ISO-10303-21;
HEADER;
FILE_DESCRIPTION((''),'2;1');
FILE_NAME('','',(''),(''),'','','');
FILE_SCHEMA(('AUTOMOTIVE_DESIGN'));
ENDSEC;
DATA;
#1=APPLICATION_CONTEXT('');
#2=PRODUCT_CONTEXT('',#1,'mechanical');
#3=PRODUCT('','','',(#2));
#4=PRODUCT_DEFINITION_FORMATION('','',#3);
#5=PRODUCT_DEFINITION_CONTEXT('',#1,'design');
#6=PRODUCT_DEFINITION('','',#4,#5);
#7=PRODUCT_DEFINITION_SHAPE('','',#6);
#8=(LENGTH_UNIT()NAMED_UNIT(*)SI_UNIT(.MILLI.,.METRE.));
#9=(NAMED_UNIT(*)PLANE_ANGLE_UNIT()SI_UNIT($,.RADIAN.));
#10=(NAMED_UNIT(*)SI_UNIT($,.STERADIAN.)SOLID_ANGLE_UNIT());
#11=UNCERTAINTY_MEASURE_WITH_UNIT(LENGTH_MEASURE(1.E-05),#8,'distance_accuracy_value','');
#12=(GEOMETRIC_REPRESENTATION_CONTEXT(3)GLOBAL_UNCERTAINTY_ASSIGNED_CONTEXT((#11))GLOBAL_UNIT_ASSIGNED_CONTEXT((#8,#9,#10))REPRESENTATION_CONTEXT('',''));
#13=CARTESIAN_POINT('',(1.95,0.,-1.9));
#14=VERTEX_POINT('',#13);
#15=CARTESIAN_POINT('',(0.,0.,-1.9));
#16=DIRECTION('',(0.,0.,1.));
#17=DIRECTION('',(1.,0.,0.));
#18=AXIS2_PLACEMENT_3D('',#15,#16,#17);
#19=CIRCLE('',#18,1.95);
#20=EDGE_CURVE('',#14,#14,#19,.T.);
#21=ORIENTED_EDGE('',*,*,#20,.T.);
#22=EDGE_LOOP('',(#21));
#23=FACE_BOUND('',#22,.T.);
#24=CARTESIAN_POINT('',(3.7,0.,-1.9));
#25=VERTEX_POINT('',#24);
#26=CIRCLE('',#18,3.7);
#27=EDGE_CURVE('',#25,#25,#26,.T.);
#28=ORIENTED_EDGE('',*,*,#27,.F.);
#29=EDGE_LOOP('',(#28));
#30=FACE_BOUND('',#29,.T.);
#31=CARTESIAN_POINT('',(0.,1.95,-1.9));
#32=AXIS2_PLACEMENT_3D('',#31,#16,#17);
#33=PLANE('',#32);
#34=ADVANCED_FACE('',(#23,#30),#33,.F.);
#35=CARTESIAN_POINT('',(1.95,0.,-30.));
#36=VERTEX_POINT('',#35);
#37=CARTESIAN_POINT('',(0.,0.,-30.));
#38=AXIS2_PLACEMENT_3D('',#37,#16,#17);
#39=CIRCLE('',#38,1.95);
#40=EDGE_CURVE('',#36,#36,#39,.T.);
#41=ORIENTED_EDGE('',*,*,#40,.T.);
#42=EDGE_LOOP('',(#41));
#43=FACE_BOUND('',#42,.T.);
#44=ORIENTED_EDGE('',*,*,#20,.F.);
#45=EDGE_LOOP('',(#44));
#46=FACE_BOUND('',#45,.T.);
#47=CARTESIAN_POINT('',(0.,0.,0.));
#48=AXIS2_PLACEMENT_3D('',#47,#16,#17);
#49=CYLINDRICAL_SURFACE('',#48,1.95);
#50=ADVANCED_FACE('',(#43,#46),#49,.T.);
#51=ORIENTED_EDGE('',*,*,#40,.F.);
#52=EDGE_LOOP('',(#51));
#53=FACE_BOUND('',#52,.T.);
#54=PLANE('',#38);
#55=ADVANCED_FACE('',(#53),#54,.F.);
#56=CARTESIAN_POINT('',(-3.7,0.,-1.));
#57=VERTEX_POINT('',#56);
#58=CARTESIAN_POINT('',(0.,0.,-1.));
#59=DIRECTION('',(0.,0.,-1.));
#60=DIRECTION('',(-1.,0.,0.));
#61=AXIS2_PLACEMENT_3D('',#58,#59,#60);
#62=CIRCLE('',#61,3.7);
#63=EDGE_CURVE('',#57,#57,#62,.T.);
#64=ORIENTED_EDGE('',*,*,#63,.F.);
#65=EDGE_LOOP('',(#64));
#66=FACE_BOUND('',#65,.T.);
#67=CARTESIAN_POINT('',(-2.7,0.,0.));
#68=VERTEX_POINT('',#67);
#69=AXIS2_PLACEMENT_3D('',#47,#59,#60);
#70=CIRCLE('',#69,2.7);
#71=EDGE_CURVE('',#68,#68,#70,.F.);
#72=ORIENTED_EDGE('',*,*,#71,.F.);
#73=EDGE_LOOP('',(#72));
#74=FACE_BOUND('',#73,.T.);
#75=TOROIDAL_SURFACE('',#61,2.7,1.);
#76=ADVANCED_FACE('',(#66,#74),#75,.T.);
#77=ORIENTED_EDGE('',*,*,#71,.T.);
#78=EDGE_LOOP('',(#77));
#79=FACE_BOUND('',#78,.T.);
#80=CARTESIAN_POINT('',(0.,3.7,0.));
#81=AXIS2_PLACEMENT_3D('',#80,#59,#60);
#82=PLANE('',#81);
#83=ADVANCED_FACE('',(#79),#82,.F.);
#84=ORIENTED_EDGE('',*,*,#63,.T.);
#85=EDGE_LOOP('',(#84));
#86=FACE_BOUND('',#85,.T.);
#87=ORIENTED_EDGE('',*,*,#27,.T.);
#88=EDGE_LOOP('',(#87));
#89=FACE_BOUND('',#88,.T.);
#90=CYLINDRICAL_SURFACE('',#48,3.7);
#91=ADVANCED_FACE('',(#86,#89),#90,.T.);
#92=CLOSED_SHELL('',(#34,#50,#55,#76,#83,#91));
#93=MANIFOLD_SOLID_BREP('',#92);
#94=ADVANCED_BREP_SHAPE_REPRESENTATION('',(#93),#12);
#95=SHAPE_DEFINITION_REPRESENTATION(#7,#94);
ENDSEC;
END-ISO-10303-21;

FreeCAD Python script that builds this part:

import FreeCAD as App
import Part
import Sketcher


def edges_at(feature, points):
    """Names of the edges that pass closest to the given points."""
    edges = feature.Shape.Edges
    near = lambda p: min(range(len(edges)), key=lambda i: edges[i].distToShape(Part.Vertex(*p))[0])
    return sorted({f"Edge{near(p) + 1}" for p in points})

doc = App.newDocument("Part")
body = doc.addObject("PartDesign::Body", "Body")

sketch1 = body.newObject("Sketcher::SketchObject", "Sketch")
sketch1.AttachmentSupport = (doc.getObject("YZ_Plane"), [""])
sketch1.MapMode = "FlatFace"
sketch1.addGeometry([
    Part.LineSegment(App.Vector(1.9, -1.9, 0), App.Vector(3.7, -1.9, 0)),
    Part.LineSegment(App.Vector(3.7, -1.9, 0), App.Vector(3.7, 0, 0)),
    Part.LineSegment(App.Vector(3.7, 0, 0), App.Vector(0, 0, 0)),
    Part.LineSegment(App.Vector(0, 0, 0), App.Vector(0, -30, 0)),
    Part.LineSegment(App.Vector(0, -30, 0), App.Vector(1.9, -30, 0)),
    Part.LineSegment(App.Vector(1.9, -30, 0), App.Vector(1.9, -1.9, 0)),
], False)
sketch1.addConstraint([
    Sketcher.Constraint("Coincident", 0, 2, 1, 1),
    Sketcher.Constraint("Coincident", 1, 2, 2, 1),
    Sketcher.Constraint("Coincident", 2, 2, 3, 1),
    Sketcher.Constraint("Coincident", 3, 2, 4, 1),
    Sketcher.Constraint("Coincident", 4, 2, 5, 1),
    Sketcher.Constraint("Coincident", 5, 2, 0, 1),
    Sketcher.Constraint("Horizontal", 0),
    Sketcher.Constraint("Vertical", 1),
    Sketcher.Constraint("Horizontal", 2),
    Sketcher.Constraint("Vertical", 3),
    Sketcher.Constraint("Horizontal", 4),
    Sketcher.Constraint("Vertical", 5),
    Sketcher.Constraint("Coincident", 2, 2, -1, 1),
    Sketcher.Constraint("DistanceY", 3, 2, 3, 1, 30.0),
    Sketcher.Constraint("DistanceX", 2, 2, 2, 1, 3.7),
    Sketcher.Constraint("DistanceY", 1, 1, 1, 2, 1.9),
    Sketcher.Constraint("DistanceX", 0, 1, 0, 2, 1.75),
])
revolution = body.newObject("PartDesign::Revolution", "Revolution")
revolution.Profile = sketch1
revolution.ReferenceAxis = (sketch1, ["V_Axis"])
revolution.Angle = 360
doc.recompute()

fillet = body.newObject("PartDesign::Fillet", "Fillet")
fillet.Base = (revolution, edges_at(revolution, [(-3.7, 0, 0)]))
fillet.Radius = 1

doc.recompute()
